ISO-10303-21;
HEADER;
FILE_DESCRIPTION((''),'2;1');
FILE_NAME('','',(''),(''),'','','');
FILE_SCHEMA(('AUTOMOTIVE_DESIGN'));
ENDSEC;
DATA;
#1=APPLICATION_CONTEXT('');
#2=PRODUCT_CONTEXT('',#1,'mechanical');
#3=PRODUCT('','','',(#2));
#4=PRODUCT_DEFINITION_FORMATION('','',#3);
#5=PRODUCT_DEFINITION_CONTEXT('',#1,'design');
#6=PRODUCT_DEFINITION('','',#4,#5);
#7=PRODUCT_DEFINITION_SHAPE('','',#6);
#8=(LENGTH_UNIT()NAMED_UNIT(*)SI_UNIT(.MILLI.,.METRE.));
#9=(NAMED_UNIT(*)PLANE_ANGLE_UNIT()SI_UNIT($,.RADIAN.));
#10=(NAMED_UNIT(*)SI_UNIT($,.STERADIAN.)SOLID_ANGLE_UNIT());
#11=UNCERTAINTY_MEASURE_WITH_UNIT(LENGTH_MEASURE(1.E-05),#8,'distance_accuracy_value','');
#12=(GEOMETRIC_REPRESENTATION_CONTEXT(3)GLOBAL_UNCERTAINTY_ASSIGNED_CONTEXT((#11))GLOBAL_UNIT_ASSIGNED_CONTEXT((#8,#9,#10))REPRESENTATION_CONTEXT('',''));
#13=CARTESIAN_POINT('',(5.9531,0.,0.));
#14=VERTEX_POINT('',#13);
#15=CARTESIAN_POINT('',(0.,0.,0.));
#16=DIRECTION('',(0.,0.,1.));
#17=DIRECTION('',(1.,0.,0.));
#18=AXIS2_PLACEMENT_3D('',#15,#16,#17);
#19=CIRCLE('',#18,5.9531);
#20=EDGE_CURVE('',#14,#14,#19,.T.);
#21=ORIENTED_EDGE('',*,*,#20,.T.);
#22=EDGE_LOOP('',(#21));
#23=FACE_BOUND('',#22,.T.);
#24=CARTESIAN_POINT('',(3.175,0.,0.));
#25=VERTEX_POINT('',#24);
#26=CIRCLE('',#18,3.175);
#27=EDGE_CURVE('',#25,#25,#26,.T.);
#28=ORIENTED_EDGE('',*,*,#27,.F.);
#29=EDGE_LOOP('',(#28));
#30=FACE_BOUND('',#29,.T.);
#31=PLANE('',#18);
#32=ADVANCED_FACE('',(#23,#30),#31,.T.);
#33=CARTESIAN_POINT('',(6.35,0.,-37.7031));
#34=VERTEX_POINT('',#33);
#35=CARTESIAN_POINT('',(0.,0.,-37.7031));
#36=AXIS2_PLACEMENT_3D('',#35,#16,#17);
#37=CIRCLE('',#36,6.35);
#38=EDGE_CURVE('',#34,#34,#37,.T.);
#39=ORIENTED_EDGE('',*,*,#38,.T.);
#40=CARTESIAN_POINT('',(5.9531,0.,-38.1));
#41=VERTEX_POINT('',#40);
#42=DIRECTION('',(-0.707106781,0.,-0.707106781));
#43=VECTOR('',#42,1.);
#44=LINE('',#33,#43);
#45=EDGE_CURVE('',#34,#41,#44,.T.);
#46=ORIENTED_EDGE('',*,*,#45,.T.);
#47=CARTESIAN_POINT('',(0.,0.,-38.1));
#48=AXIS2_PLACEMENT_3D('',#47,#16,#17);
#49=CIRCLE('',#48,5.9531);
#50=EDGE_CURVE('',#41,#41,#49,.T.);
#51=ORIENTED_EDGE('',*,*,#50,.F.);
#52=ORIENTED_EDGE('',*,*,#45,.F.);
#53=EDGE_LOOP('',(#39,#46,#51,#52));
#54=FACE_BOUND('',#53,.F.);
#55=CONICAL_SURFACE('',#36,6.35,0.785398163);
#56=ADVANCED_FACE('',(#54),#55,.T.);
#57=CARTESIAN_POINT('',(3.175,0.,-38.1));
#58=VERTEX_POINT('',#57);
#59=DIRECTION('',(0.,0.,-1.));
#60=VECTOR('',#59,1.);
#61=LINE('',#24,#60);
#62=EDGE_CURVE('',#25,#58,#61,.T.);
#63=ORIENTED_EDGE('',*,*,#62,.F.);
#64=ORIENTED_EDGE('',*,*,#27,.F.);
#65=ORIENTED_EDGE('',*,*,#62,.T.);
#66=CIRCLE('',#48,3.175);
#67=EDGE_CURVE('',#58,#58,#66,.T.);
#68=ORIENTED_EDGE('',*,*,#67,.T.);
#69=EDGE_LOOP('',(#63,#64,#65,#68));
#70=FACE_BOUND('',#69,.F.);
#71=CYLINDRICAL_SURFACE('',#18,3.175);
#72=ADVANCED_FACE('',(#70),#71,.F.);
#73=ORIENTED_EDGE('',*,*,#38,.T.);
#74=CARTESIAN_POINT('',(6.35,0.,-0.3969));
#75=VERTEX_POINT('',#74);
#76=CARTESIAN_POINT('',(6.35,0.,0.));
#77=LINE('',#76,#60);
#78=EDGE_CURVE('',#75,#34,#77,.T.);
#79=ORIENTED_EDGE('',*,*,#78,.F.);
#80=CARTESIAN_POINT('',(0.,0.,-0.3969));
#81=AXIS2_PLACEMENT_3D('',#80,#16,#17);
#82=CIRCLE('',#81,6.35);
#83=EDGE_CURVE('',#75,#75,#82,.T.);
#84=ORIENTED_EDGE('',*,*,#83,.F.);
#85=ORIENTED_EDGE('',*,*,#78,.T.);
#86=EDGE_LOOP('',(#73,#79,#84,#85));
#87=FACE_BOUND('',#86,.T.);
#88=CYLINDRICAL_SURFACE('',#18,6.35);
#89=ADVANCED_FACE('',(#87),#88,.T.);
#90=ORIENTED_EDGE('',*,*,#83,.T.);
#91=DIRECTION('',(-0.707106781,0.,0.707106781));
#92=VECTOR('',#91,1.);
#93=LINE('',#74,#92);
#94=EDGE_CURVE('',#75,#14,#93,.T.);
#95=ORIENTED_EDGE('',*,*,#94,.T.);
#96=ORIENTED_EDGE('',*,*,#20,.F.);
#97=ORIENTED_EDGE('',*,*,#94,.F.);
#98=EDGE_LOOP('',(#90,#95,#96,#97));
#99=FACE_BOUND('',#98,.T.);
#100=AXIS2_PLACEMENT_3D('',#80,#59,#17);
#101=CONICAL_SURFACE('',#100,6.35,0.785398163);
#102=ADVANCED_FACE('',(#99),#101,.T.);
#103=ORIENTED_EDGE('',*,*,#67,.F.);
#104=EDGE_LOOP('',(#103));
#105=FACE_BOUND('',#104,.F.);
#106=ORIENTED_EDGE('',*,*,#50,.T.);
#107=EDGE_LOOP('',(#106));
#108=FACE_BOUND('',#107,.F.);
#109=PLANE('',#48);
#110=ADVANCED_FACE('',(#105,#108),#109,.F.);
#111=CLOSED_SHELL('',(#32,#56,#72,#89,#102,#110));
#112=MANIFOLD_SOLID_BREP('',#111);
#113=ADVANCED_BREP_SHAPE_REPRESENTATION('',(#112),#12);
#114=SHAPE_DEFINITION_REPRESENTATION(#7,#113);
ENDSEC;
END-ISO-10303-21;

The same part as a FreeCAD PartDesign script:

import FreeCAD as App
import Part
import Sketcher

V = App.Vector
Q = App.Units.Quantity


def edges_at(feature, points):
    """Names of the edges that pass closest to the given points."""
    edges = feature.Shape.Edges
    near = lambda p: min(range(len(edges)), key=lambda i: edges[i].distToShape(Part.Vertex(*p))[0])
    return sorted({f"Edge{near(p) + 1}" for p in points})

doc = App.newDocument("Part")
body = doc.addObject("PartDesign::Body", "Body")

# Sketch on XY plane
sketch1 = body.newObject("Sketcher::SketchObject", "Sketch")
sketch1.AttachmentSupport = (doc.getObject("XY_Plane"), [""])
sketch1.MapMode = "FlatFace"
sketch1.addGeometry(Part.Circle(V(0, 0, 0), V(0, 0, 1), 6.3), False)
sketch1.addGeometry(Part.Circle(V(0, 0, 0), V(0, 0, 1), 3.2), False)
sketch1.addConstraint(Sketcher.Constraint("Coincident", 0, 3, -1, 1))
sketch1.addConstraint(Sketcher.Constraint("Coincident", 1, 3, -1, 1))
sketch1.addConstraint(Sketcher.Constraint("Diameter", 0, Q("0.5 in")))
sketch1.addConstraint(Sketcher.Constraint("Diameter", 1, Q("0.25 in")))
pad1 = body.newObject("PartDesign::Pad", "Pad")
pad1.Profile = sketch1
pad1.Length = Q("1.5 in")
pad1.Reversed = True
doc.recompute()

chamfer = body.newObject("PartDesign::Chamfer", "Chamfer")
chamfer.Base = (pad1, edges_at(pad1, [(-6.35, 0, 0), (-6.35, 0, -38.1)]))
chamfer.Size = Q("0.015626 in")

doc.recompute()
